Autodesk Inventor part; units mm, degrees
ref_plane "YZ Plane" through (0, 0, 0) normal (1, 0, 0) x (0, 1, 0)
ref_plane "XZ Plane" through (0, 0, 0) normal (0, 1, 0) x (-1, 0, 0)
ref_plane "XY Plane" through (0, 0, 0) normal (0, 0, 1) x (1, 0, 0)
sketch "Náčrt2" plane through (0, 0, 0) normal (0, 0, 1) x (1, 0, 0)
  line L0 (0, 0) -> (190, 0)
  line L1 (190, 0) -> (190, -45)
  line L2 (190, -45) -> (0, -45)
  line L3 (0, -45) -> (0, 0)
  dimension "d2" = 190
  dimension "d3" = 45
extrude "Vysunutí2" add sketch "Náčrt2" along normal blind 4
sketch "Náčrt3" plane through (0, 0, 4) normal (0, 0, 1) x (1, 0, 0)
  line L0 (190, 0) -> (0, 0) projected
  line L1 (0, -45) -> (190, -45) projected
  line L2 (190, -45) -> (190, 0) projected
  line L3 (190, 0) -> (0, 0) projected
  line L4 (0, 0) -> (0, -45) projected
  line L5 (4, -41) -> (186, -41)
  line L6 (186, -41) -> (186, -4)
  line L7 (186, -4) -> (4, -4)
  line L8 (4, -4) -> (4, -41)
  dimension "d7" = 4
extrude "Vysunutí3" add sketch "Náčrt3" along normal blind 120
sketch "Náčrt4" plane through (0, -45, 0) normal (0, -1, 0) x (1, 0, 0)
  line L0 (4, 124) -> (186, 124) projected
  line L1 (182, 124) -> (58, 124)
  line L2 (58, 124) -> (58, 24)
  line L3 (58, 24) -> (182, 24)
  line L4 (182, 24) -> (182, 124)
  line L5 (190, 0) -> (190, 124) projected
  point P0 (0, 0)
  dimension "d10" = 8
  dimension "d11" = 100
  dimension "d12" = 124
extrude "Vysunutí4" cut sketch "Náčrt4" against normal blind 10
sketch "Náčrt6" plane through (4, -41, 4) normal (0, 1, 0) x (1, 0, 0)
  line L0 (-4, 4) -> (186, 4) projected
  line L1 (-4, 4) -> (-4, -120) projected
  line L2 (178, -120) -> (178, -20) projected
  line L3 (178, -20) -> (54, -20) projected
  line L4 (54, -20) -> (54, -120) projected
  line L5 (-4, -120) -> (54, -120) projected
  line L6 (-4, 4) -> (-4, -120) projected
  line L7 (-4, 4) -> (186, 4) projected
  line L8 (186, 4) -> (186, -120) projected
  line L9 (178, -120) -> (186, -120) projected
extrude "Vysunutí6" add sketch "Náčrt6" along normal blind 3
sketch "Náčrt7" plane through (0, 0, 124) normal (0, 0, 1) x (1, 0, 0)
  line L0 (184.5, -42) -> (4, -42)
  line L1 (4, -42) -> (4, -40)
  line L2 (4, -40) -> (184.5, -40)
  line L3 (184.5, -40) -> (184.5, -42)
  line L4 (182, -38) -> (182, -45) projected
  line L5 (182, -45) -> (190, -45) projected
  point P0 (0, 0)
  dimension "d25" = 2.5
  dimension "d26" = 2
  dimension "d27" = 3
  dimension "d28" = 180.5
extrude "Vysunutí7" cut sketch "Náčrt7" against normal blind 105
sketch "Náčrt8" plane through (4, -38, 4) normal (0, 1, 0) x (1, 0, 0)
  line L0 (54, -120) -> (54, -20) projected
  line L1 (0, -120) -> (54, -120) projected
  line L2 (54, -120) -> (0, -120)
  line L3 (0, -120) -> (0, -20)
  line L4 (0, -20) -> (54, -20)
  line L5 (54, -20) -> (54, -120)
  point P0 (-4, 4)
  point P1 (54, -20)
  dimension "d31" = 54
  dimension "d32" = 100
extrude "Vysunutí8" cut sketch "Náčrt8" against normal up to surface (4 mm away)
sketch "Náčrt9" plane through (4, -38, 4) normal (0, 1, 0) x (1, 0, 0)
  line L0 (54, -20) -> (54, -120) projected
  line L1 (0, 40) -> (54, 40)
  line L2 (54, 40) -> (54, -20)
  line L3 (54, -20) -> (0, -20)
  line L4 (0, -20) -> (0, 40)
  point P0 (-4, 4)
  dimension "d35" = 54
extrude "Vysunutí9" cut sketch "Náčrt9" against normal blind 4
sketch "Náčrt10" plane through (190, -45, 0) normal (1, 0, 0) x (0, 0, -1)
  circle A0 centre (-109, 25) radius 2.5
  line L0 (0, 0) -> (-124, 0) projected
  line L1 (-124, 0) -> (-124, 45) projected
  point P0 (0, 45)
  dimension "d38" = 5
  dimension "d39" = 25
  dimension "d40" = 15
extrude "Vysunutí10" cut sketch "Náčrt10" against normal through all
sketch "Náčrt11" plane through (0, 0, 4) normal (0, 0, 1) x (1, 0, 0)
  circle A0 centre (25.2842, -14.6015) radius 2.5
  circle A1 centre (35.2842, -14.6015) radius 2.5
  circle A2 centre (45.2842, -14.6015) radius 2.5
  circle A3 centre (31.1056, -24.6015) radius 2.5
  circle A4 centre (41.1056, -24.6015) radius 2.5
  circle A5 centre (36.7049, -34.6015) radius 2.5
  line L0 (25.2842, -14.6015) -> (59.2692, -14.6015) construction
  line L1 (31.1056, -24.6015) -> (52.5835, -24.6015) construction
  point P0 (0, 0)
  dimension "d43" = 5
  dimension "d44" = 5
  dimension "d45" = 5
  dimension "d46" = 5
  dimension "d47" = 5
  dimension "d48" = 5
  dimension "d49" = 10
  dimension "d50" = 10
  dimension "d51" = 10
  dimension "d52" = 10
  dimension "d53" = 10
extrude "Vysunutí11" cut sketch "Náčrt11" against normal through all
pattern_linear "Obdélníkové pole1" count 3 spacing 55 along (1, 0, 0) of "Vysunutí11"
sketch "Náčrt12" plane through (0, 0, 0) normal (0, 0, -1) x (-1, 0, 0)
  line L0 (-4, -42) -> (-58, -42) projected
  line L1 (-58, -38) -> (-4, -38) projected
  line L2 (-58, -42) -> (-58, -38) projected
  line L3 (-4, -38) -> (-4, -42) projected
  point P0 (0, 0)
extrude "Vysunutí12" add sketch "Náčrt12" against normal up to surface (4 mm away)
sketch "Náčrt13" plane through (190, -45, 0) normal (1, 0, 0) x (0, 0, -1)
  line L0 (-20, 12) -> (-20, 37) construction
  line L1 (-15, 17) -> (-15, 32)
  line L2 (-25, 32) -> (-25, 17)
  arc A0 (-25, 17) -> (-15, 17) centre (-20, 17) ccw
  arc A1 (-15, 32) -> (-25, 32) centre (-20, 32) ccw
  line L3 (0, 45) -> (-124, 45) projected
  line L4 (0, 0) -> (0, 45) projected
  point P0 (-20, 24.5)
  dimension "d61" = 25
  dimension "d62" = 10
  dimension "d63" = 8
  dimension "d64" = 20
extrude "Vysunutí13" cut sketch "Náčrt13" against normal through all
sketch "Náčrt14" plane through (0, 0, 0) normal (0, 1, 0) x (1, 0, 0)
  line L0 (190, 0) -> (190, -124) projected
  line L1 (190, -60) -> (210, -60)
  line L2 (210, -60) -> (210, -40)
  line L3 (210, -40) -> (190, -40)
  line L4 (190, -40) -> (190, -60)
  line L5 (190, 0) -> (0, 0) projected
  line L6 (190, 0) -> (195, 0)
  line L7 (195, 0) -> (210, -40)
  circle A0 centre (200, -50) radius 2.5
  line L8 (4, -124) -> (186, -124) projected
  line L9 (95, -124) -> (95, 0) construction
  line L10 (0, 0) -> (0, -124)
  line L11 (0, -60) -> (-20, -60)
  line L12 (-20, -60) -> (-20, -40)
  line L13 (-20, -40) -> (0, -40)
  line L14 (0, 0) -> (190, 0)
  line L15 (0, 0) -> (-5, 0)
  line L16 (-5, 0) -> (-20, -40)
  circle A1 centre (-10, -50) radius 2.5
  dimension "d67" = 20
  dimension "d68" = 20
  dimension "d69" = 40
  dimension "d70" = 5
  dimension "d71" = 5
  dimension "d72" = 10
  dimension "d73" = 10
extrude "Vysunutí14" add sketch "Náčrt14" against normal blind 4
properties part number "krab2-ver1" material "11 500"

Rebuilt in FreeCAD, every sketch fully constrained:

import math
import FreeCAD as App
import Part
import Sketcher

doc = App.newDocument("Part")
body = doc.addObject("PartDesign::Body", "Body")

# Sketch on XY plane
sketch1 = doc.addObject("Sketcher::SketchObject", "Sketch")
body.addObject(sketch1)
sketch1.AttachmentSupport = (doc.XY_Plane, [""])
sketch1.MapMode = "FlatFace"
sketch1.addGeometry([
    Part.LineSegment(App.Vector(190, 0, 0), App.Vector(0, 0, 0)),
    Part.LineSegment(App.Vector(0, 0, 0), App.Vector(0, -45, 0)),
    Part.LineSegment(App.Vector(0, -45, 0), App.Vector(190, -45, 0)),
    Part.LineSegment(App.Vector(190, -45, 0), App.Vector(190, 0, 0)),
], False)
sketch1.addConstraint([
    Sketcher.Constraint("Coincident", 0, 2, 1, 1),
    Sketcher.Constraint("Coincident", 1, 2, 2, 1),
    Sketcher.Constraint("Coincident", 2, 2, 3, 1),
    Sketcher.Constraint("Coincident", 3, 2, 0, 1),
    Sketcher.Constraint("Horizontal", 0),
    Sketcher.Constraint("Vertical", 1),
    Sketcher.Constraint("Horizontal", 2),
    Sketcher.Constraint("Vertical", 3),
    Sketcher.Constraint("Coincident", 0, 2, -1, 1),
    Sketcher.Constraint("DistanceX", 0, 2, 0, 1, 190.0),
    Sketcher.Constraint("DistanceY", 1, 2, 1, 1, 45.0),
])
pad1 = doc.addObject("PartDesign::Pad", "Pad")
body.addObject(pad1)
pad1.Profile = sketch1
pad1.Length = 4

# Sketch on XY plane
sketch2 = doc.addObject("Sketcher::SketchObject", "Sketch001")
body.addObject(sketch2)
sketch2.AttachmentSupport = (doc.XY_Plane, [""])
sketch2.MapMode = "FlatFace"
sketch2.AttachmentOffset = App.Placement(App.Vector(0, 0, 4), App.Rotation())
sketch2.addGeometry([
    Part.LineSegment(App.Vector(190, -45, 0), App.Vector(190, 0, 0)),  # 0
    Part.LineSegment(App.Vector(190, 0, 0), App.Vector(0, 0, 0)),  # 1
    Part.LineSegment(App.Vector(0, 0, 0), App.Vector(0, -45, 0)),  # 2
    Part.LineSegment(App.Vector(0, -45, 0), App.Vector(190, -45, 0)),  # 3
    Part.LineSegment(App.Vector(186, -41, 0), App.Vector(4, -41, 0)),  # 4
    Part.LineSegment(App.Vector(4, -41, 0), App.Vector(4, -4, 0)),  # 5
    Part.LineSegment(App.Vector(4, -4, 0), App.Vector(186, -4, 0)),  # 6
    Part.LineSegment(App.Vector(186, -4, 0), App.Vector(186, -41, 0)),  # 7
], False)
sketch2.addConstraint([
    Sketcher.Constraint("Coincident", 0, 2, 1, 1),
    Sketcher.Constraint("Coincident", 1, 2, 2, 1),
    Sketcher.Constraint("Coincident", 2, 2, 3, 1),
    Sketcher.Constraint("Coincident", 3, 2, 0, 1),
    Sketcher.Constraint("Coincident", 4, 2, 5, 1),
    Sketcher.Constraint("Coincident", 5, 2, 6, 1),
    Sketcher.Constraint("Coincident", 6, 2, 7, 1),
    Sketcher.Constraint("Coincident", 7, 2, 4, 1),
    Sketcher.Constraint("Vertical", 0),
    Sketcher.Constraint("Horizontal", 1),
    Sketcher.Constraint("Vertical", 2),
    Sketcher.Constraint("Horizontal", 3),
    Sketcher.Constraint("Horizontal", 4),
    Sketcher.Constraint("Vertical", 5),
    Sketcher.Constraint("Horizontal", 6),
    Sketcher.Constraint("Vertical", 7),
    Sketcher.Constraint("Coincident", 1, 2, -1, 1),
    Sketcher.Constraint("DistanceX", -1, 1, 4, 2, 4.0),
    Sketcher.Constraint("DistanceY", 5, 2, -1, 1, 4.0),
    Sketcher.Constraint("DistanceY", 2, 2, 4, 2, 4.0),
    Sketcher.Constraint("DistanceX", 6, 2, 0, 2, 4.0),
    Sketcher.Constraint("DistanceX", 1, 2, 1, 1, 190.0),
    Sketcher.Constraint("DistanceY", 0, 1, 0, 2, 45.0),
])
pad2 = doc.addObject("PartDesign::Pad", "Pad001")
body.addObject(pad2)
pad2.Profile = sketch2
pad2.Length = 120

# Sketch on XZ plane
sketch3 = doc.addObject("Sketcher::SketchObject", "Sketch002")
body.addObject(sketch3)
sketch3.AttachmentSupport = (doc.XZ_Plane, [""])
sketch3.MapMode = "FlatFace"
sketch3.AttachmentOffset = App.Placement(App.Vector(0, 0, 45), App.Rotation())
sketch3.addGeometry([
    Part.LineSegment(App.Vector(182, 124, 0), App.Vector(58, 124, 0)),
    Part.LineSegment(App.Vector(58, 124, 0), App.Vector(58, 24, 0)),
    Part.LineSegment(App.Vector(58, 24, 0), App.Vector(182, 24, 0)),
    Part.LineSegment(App.Vector(182, 24, 0), App.Vector(182, 124, 0)),
], False)
sketch3.addConstraint([
    Sketcher.Constraint("Coincident", 0, 2, 1, 1),
    Sketcher.Constraint("Coincident", 1, 2, 2, 1),
    Sketcher.Constraint("Coincident", 2, 2, 3, 1),
    Sketcher.Constraint("Coincident", 3, 2, 0, 1),
    Sketcher.Constraint("Horizontal", 0),
    Sketcher.Constraint("Vertical", 1),
    Sketcher.Constraint("Horizontal", 2),
    Sketcher.Constraint("Vertical", 3),
    Sketcher.Constraint("DistanceX", 0, 2, 0, 1, 124.0),
    Sketcher.Constraint("DistanceY", 1, 2, 1, 1, 100.0),
    Sketcher.Constraint("DistanceY", -1, 1, 0, 2, 124.0),
    Sketcher.Constraint("DistanceX", -1, 1, 0, 2, 58.0),
])
pocket1 = doc.addObject("PartDesign::Pocket", "Pocket")
body.addObject(pocket1)
pocket1.Profile = sketch3
pocket1.Length = 10

# Sketch on XZ plane
sketch4 = doc.addObject("Sketcher::SketchObject", "Sketch003")
body.addObject(sketch4)
sketch4.AttachmentSupport = (doc.XZ_Plane, [""])
sketch4.MapMode = "FlatFace"
sketch4.AttachmentOffset = App.Placement(App.Vector(0, 0, 41), App.Rotation())
sketch4.addGeometry([
    Part.LineSegment(App.Vector(190, 0, 0), App.Vector(0, 0, 0)),  # 0
    Part.LineSegment(App.Vector(0, 0, 0), App.Vector(0, 124, 0)),  # 1
    Part.LineSegment(App.Vector(0, 124, 0), App.Vector(58, 124, 0)),  # 2
    Part.LineSegment(App.Vector(58, 124, 0), App.Vector(58, 24, 0)),  # 3
    Part.LineSegment(App.Vector(58, 24, 0), App.Vector(182, 24, 0)),  # 4
    Part.LineSegment(App.Vector(182, 24, 0), App.Vector(182, 124, 0)),  # 5
    Part.LineSegment(App.Vector(182, 124, 0), App.Vector(190, 124, 0)),  # 6
    Part.LineSegment(App.Vector(190, 124, 0), App.Vector(190, 0, 0)),  # 7
], False)
sketch4.addConstraint([
    Sketcher.Constraint("Coincident", 0, 2, 1, 1),
    Sketcher.Constraint("Coincident", 1, 2, 2, 1),
    Sketcher.Constraint("Coincident", 2, 2, 3, 1),
    Sketcher.Constraint("Coincident", 3, 2, 4, 1),
    Sketcher.Constraint("Coincident", 4, 2, 5, 1),
    Sketcher.Constraint("Coincident", 5, 2, 6, 1),
    Sketcher.Constraint("Coincident", 6, 2, 7, 1),
    Sketcher.Constraint("Coincident", 7, 2, 0, 1),
    Sketcher.Constraint("Horizontal", 0),
    Sketcher.Constraint("Vertical", 1),
    Sketcher.Constraint("Horizontal", 2),
    Sketcher.Constraint("Vertical", 3),
    Sketcher.Constraint("Horizontal", 4),
    Sketcher.Constraint("Vertical", 5),
    Sketcher.Constraint("Horizontal", 6),
    Sketcher.Constraint("Vertical", 7),
    Sketcher.Constraint("Coincident", 0, 2, -1, 1),
    Sketcher.Constraint("Horizontal", 2, 2, 5, 2),
    Sketcher.Constraint("Equal", 4, 1),
    Sketcher.Constraint("DistanceX", 0, 2, 0, 1, 190.0),
    Sketcher.Constraint("DistanceX", 2, 1, 2, 2, 58.0),
    Sketcher.Constraint("DistanceX", 4, 1, 4, 2, 124.0),
    Sketcher.Constraint("DistanceY", 3, 2, 3, 1, 100.0),
])
pad3 = doc.addObject("PartDesign::Pad", "Pad002")
body.addObject(pad3)
pad3.Profile = sketch4
pad3.Length = 3
pad3.Reversed = True

# Sketch on XY plane
sketch5 = doc.addObject("Sketcher::SketchObject", "Sketch004")
body.addObject(sketch5)
sketch5.AttachmentSupport = (doc.XY_Plane, [""])
sketch5.MapMode = "FlatFace"
sketch5.AttachmentOffset = App.Placement(App.Vector(0, 0, 124), App.Rotation())
sketch5.addGeometry([
    Part.LineSegment(App.Vector(184.5, -42, 0), App.Vector(184.5, -40, 0)),
    Part.LineSegment(App.Vector(184.5, -40, 0), App.Vector(4, -40, 0)),
    Part.LineSegment(App.Vector(4, -40, 0), App.Vector(4, -42, 0)),
    Part.LineSegment(App.Vector(4, -42, 0), App.Vector(184.5, -42, 0)),
], False)
sketch5.addConstraint([
    Sketcher.Constraint("Coincident", 0, 2, 1, 1),
    Sketcher.Constraint("Coincident", 1, 2, 2, 1),
    Sketcher.Constraint("Coincident", 2, 2, 3, 1),
    Sketcher.Constraint("Coincident", 3, 2, 0, 1),
    Sketcher.Constraint("Vertical", 0),
    Sketcher.Constraint("Horizontal", 1),
    Sketcher.Constraint("Vertical", 2),
    Sketcher.Constraint("Horizontal", 3),
    Sketcher.Constraint("DistanceY", 0, 1, 0, 2, 2.0),
    Sketcher.Constraint("DistanceX", 1, 2, 1, 1, 180.5),
    Sketcher.Constraint("DistanceY", 0, 2, -1, 1, 40.0),
    Sketcher.Constraint("DistanceX", -1, 1, 1, 2, 4.0),
])
pocket2 = doc.addObject("PartDesign::Pocket", "Pocket001")
body.addObject(pocket2)
pocket2.Profile = sketch5
pocket2.Length = 105

# Sketch on XZ plane
sketch6 = doc.addObject("Sketcher::SketchObject", "Sketch005")
body.addObject(sketch6)
sketch6.AttachmentSupport = (doc.XZ_Plane, [""])
sketch6.MapMode = "FlatFace"
sketch6.AttachmentOffset = App.Placement(App.Vector(0, 0, 38), App.Rotation())
sketch6.addGeometry([
    Part.LineSegment(App.Vector(4, 124, 0), App.Vector(58, 124, 0)),
    Part.LineSegment(App.Vector(58, 124, 0), App.Vector(58, 24, 0)),
    Part.LineSegment(App.Vector(58, 24, 0), App.Vector(4, 24, 0)),
    Part.LineSegment(App.Vector(4, 24, 0), App.Vector(4, 124, 0)),
], False)
sketch6.addConstraint([
    Sketcher.Constraint("Coincident", 0, 2, 1, 1),
    Sketcher.Constraint("Coincident", 1, 2, 2, 1),
    Sketcher.Constraint("Coincident", 2, 2, 3, 1),
    Sketcher.Constraint("Coincident", 3, 2, 0, 1),
    Sketcher.Constraint("Horizontal", 0),
    Sketcher.Constraint("Vertical", 1),
    Sketcher.Constraint("Horizontal", 2),
    Sketcher.Constraint("Vertical", 3),
    Sketcher.Constraint("DistanceX", 0, 1, 0, 2, 54.0),
    Sketcher.Constraint("DistanceY", 1, 2, 1, 1, 100.0),
    Sketcher.Constraint("DistanceX", -1, 1, 0, 2, 58.0),
    Sketcher.Constraint("DistanceY", -1, 1, 0, 2, 124.0),
])
pocket3 = doc.addObject("PartDesign::Pocket", "Pocket002")
body.addObject(pocket3)
pocket3.Profile = sketch6
pocket3.Length = 4
pocket3.Reversed = True

# Sketch on XZ plane
sketch7 = doc.addObject("Sketcher::SketchObject", "Sketch006")
body.addObject(sketch7)
sketch7.AttachmentSupport = (doc.XZ_Plane, [""])
sketch7.MapMode = "FlatFace"
sketch7.AttachmentOffset = App.Placement(App.Vector(0, 0, 38), App.Rotation())
sketch7.addGeometry([
    Part.LineSegment(App.Vector(58, -36, 0), App.Vector(4, -36, 0)),
    Part.LineSegment(App.Vector(4, -36, 0), App.Vector(4, 24, 0)),
    Part.LineSegment(App.Vector(4, 24, 0), App.Vector(58, 24, 0)),
    Part.LineSegment(App.Vector(58, 24, 0), App.Vector(58, -36, 0)),
], False)
sketch7.addConstraint([
    Sketcher.Constraint("Coincident", 0, 2, 1, 1),
    Sketcher.Constraint("Coincident", 1, 2, 2, 1),
    Sketcher.Constraint("Coincident", 2, 2, 3, 1),
    Sketcher.Constraint("Coincident", 3, 2, 0, 1),
    Sketcher.Constraint("Horizontal", 0),
    Sketcher.Constraint("Vertical", 1),
    Sketcher.Constraint("Horizontal", 2),
    Sketcher.Constraint("Vertical", 3),
    Sketcher.Constraint("DistanceX", 0, 2, 0, 1, 54.0),
    Sketcher.Constraint("DistanceY", 1, 1, 1, 2, 60.0),
    Sketcher.Constraint("DistanceX", -1, 1, 0, 2, 4.0),
    Sketcher.Constraint("DistanceY", 0, 2, -1, 1, 36.0),
])
pocket4 = doc.addObject("PartDesign::Pocket", "Pocket003")
body.addObject(pocket4)
pocket4.Profile = sketch7
pocket4.Length = 4
pocket4.Reversed = True

# Sketch on YZ plane
sketch8 = doc.addObject("Sketcher::SketchObject", "Sketch007")
body.addObject(sketch8)
sketch8.AttachmentSupport = (doc.YZ_Plane, [""])
sketch8.MapMode = "FlatFace"
sketch8.AttachmentOffset = App.Placement(App.Vector(0, 0, 190), App.Rotation())
sketch8.addGeometry(Part.Circle(App.Vector(-20, 109, 0), App.Vector(0, 0, 1), 2.5), False)
sketch8.addConstraint([
    Sketcher.Constraint("Diameter", 0, 5.0),
    Sketcher.Constraint("DistanceX", 0, 3, -1, 1, 20.0),
    Sketcher.Constraint("DistanceY", -1, 1, 0, 3, 109.0),
])
pocket5 = doc.addObject("PartDesign::Pocket", "Pocket004")
body.addObject(pocket5)
pocket5.Profile = sketch8
pocket5.Type = "ThroughAll"

# Sketch on XY plane
sketch9 = doc.addObject("Sketcher::SketchObject", "Sketch008")
body.addObject(sketch9)
sketch9.AttachmentSupport = (doc.XY_Plane, [""])
sketch9.MapMode = "FlatFace"
sketch9.AttachmentOffset = App.Placement(App.Vector(0, 0, 4), App.Rotation())
sketch9.addGeometry([
    Part.Circle(App.Vector(25.3, -14.6, 0), App.Vector(0, 0, 1), 2.5),  # 0
    Part.Circle(App.Vector(35.3, -14.6, 0), App.Vector(0, 0, 1), 2.5),  # 1
    Part.Circle(App.Vector(45.3, -14.6, 0), App.Vector(0, 0, 1), 2.5),  # 2
    Part.Circle(App.Vector(31.1, -24.6, 0), App.Vector(0, 0, 1), 2.5),  # 3
    Part.Circle(App.Vector(41.1, -24.6, 0), App.Vector(0, 0, 1), 2.5),  # 4
    Part.Circle(App.Vector(36.7, -34.6, 0), App.Vector(0, 0, 1), 2.5),  # 5
], False)
sketch9.addConstraint([
    Sketcher.Constraint("Equal", 0, 1),
    Sketcher.Constraint("Equal", 1, 2),
    Sketcher.Constraint("Equal", 2, 3),
    Sketcher.Constraint("Equal", 3, 4),
    Sketcher.Constraint("Equal", 4, 5),
    Sketcher.Constraint("Horizontal", 0, 3, 1, 3),
    Sketcher.Constraint("Horizontal", 1, 3, 2, 3),
    Sketcher.Constraint("Horizontal", 3, 3, 4, 3),
    Sketcher.Constraint("Diameter", 0, 5.0),
    Sketcher.Constraint("DistanceX", 0, 3, 1, 3, 10.0),
    Sketcher.Constraint("DistanceX", 1, 3, 2, 3, 10.0),
    Sketcher.Constraint("DistanceY", 3, 3, 1, 3, 10.0),
    Sketcher.Constraint("DistanceX", 3, 3, 4, 3, 10.0),
    Sketcher.Constraint("DistanceY", 5, 3, 4, 3, 10.0),
    Sketcher.Constraint("DistanceX", -1, 1, 5, 3, 36.705),
    Sketcher.Constraint("DistanceX", -1, 1, 0, 3, 25.2842),
    Sketcher.Constraint("DistanceY", 0, 3, -1, 1, 14.6015),
    Sketcher.Constraint("DistanceX", -1, 1, 3, 3, 31.1056),
])
pocket6 = doc.addObject("PartDesign::Pocket", "Pocket005")
body.addObject(pocket6)
pocket6.Profile = sketch9
pocket6.Type = "ThroughAll"
doc.recompute()

linearpattern = doc.addObject("PartDesign::LinearPattern", "LinearPattern")
body.addObject(linearpattern)
linearpattern.Originals = [pocket6]
linearpattern.Direction = (doc.X_Axis, [""])
linearpattern.Mode = "offset"
linearpattern.Offset = 55
linearpattern.Occurrences = 3
body.Tip = linearpattern

# Sketch on XY plane
sketch10 = doc.addObject("Sketcher::SketchObject", "Sketch009")
body.addObject(sketch10)
sketch10.AttachmentSupport = (doc.XY_Plane, [""])
sketch10.MapMode = "FlatFace"
sketch10.addGeometry([
    Part.LineSegment(App.Vector(58, -42, 0), App.Vector(4, -42, 0)),
    Part.LineSegment(App.Vector(4, -42, 0), App.Vector(4, -38, 0)),
    Part.LineSegment(App.Vector(4, -38, 0), App.Vector(58, -38, 0)),
    Part.LineSegment(App.Vector(58, -38, 0), App.Vector(58, -42, 0)),
], False)
sketch10.addConstraint([
    Sketcher.Constraint("Coincident", 0, 2, 1, 1),
    Sketcher.Constraint("Coincident", 1, 2, 2, 1),
    Sketcher.Constraint("Coincident", 2, 2, 3, 1),
    Sketcher.Constraint("Coincident", 3, 2, 0, 1),
    Sketcher.Constraint("Horizontal", 0),
    Sketcher.Constraint("Vertical", 1),
    Sketcher.Constraint("Horizontal", 2),
    Sketcher.Constraint("Vertical", 3),
    Sketcher.Constraint("DistanceX", 0, 2, 0, 1, 54.0),
    Sketcher.Constraint("DistanceY", 1, 1, 1, 2, 4.0),
    Sketcher.Constraint("DistanceX", -1, 1, 0, 2, 4.0),
    Sketcher.Constraint("DistanceY", 0, 2, -1, 1, 42.0),
])
pad4 = doc.addObject("PartDesign::Pad", "Pad003")
body.addObject(pad4)
pad4.Profile = sketch10
pad4.Length = 4

# Sketch on YZ plane
sketch11 = doc.addObject("Sketcher::SketchObject", "Sketch010")
body.addObject(sketch11)
sketch11.AttachmentSupport = (doc.YZ_Plane, [""])
sketch11.MapMode = "FlatFace"
sketch11.AttachmentOffset = App.Placement(App.Vector(0, 0, 190), App.Rotation())
sketch11.addGeometry([
    Part.ArcOfCircle(Part.Circle(App.Vector(-28, 20, 0), App.Vector(0, 0, 1), 5), math.radians(90), math.radians(270)),
    Part.LineSegment(App.Vector(-28, 15, 0), App.Vector(-13, 15, 0)),
    Part.ArcOfCircle(Part.Circle(App.Vector(-13, 20, 0), App.Vector(0, 0, 1), 5), math.radians(-90), math.radians(90)),
    Part.LineSegment(App.Vector(-13, 25, 0), App.Vector(-28, 25, 0)),
], False)
sketch11.addConstraint([
    Sketcher.Constraint("Tangent", 0, 2, 1, 1),
    Sketcher.Constraint("Tangent", 1, 2, 2, 1),
    Sketcher.Constraint("Tangent", 2, 2, 3, 1),
    Sketcher.Constraint("Tangent", 3, 2, 0, 1),
    Sketcher.Constraint("Horizontal", 1),
    Sketcher.Constraint("Horizontal", 3),
    Sketcher.Constraint("Radius", 0, 5.0),
    Sketcher.Constraint("DistanceY", -1, 1, 0, 3, 20.0),
    Sketcher.Constraint("DistanceX", 1, 1, 1, 2, 15.0),
    Sketcher.Constraint("DistanceX", 0, 3, -1, 1, 28.0),
])
pocket7 = doc.addObject("PartDesign::Pocket", "Pocket006")
body.addObject(pocket7)
pocket7.Profile = sketch11
pocket7.Type = "ThroughAll"

# Sketch on XZ plane
sketch12 = doc.addObject("Sketcher::SketchObject", "Sketch011")
body.addObject(sketch12)
sketch12.AttachmentSupport = (doc.XZ_Plane, [""])
sketch12.MapMode = "FlatFace"
sketch12.addGeometry([
    Part.LineSegment(App.Vector(195, 0, 0), App.Vector(190, 0, 0)),  # 0
    Part.LineSegment(App.Vector(190, 0, 0), App.Vector(190, 60, 0)),  # 1
    Part.LineSegment(App.Vector(190, 60, 0), App.Vector(210, 60, 0)),  # 2
    Part.LineSegment(App.Vector(210, 60, 0), App.Vector(210, 40, 0)),  # 3
    Part.LineSegment(App.Vector(210, 40, 0), App.Vector(195, 0, 0)),  # 4
    Part.Circle(App.Vector(200, 50, 0), App.Vector(0, 0, 1), 2.5),  # 5
    Part.LineSegment(App.Vector(0, 0, 0), App.Vector(-5, 0, 0)),  # 6
    Part.LineSegment(App.Vector(-5, 0, 0), App.Vector(-20, 40, 0)),  # 7
    Part.LineSegment(App.Vector(-20, 40, 0), App.Vector(-20, 60, 0)),  # 8
    Part.LineSegment(App.Vector(-20, 60, 0), App.Vector(0, 60, 0)),  # 9
    Part.LineSegment(App.Vector(0, 60, 0), App.Vector(0, 0, 0)),  # 10
    Part.Circle(App.Vector(-10, 50, 0), App.Vector(0, 0, 1), 2.5),  # 11
], False)
sketch12.addConstraint([
    Sketcher.Constraint("Coincident", 0, 2, 1, 1),
    Sketcher.Constraint("Coincident", 1, 2, 2, 1),
    Sketcher.Constraint("Coincident", 2, 2, 3, 1),
    Sketcher.Constraint("Coincident", 3, 2, 4, 1),
    Sketcher.Constraint("Coincident", 4, 2, 0, 1),
    Sketcher.Constraint("Coincident", 6, 2, 7, 1),
    Sketcher.Constraint("Coincident", 7, 2, 8, 1),
    Sketcher.Constraint("Coincident", 8, 2, 9, 1),
    Sketcher.Constraint("Coincident", 9, 2, 10, 1),
    Sketcher.Constraint("Coincident", 10, 2, 6, 1),
    Sketcher.Constraint("Horizontal", 0),
    Sketcher.Constraint("Vertical", 1),
    Sketcher.Constraint("Horizontal", 2),
    Sketcher.Constraint("Vertical", 3),
    Sketcher.Constraint("Horizontal", 6),
    Sketcher.Constraint("Vertical", 8),
    Sketcher.Constraint("Horizontal", 9),
    Sketcher.Constraint("Vertical", 10),
    Sketcher.Constraint("Coincident", 10, 2, -1, 1),
    Sketcher.Constraint("Equal", 5, 11),
    Sketcher.Constraint("PointOnObject", 0, 2, -1),
    Sketcher.Constraint("Horizontal", 5, 3, 11, 3),
    Sketcher.Constraint("Horizontal", 3, 2, 7, 2),
    Sketcher.Constraint("Horizontal", 2, 2, 8, 2),
    Sketcher.Constraint("Equal", 0, 6),
    Sketcher.Constraint("Equal", 2, 9),
    Sketcher.Constraint("Equal", 9, 3),
    Sketcher.Constraint("Diameter", 5, 5.0),
    Sketcher.Constraint("DistanceX", 0, 2, 0, 1, 5.0),
    Sketcher.Constraint("DistanceX", 2, 1, 2, 2, 20.0),
    Sketcher.Constraint("DistanceX", 11, 3, -1, 1, 10.0),
    Sketcher.Constraint("DistanceY", -1, 1, 3, 2, 40.0),
    Sketcher.Constraint("DistanceX", 0, 2, 5, 3, 10.0),
    Sketcher.Constraint("DistanceY", 5, 3, 1, 2, 10.0),
    Sketcher.Constraint("DistanceX", -1, 1, 5, 3, 200.0),
])
pad5 = doc.addObject("PartDesign::Pad", "Pad004")
body.addObject(pad5)
pad5.Profile = sketch12
pad5.Length = 4

doc.recompute()
